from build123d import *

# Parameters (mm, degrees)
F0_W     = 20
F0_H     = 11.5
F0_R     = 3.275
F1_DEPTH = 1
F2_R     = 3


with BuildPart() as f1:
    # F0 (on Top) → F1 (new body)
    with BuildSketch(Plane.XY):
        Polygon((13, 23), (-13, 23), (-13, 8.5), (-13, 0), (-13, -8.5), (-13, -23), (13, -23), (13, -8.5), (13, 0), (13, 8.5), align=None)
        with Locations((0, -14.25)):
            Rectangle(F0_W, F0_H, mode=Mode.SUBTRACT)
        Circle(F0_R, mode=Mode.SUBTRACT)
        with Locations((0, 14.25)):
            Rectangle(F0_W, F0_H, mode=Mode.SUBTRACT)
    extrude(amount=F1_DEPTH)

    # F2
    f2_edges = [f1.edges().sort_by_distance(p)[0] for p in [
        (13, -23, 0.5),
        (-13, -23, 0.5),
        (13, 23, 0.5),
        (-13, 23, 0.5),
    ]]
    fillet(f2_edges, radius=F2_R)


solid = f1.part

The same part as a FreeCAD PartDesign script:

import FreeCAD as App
import Part
import Sketcher
from FreeCAD import Vector
Q = App.Units.Quantity


def edges_at(feature, points):
    """Names of the edges that pass closest to the given points."""
    edges = feature.Shape.Edges
    near = lambda p: min(range(len(edges)), key=lambda i: edges[i].distToShape(Part.Vertex(*p))[0])
    return sorted({f"Edge{near(p) + 1}" for p in points})


def add_polygon(sketch, points):
    """Adds a closed chain of lines whose ends are joined by coincident constraints."""
    first, n = sketch.GeometryCount, len(points)
    for a, b in zip(points, points[1:] + points[:1]):
        sketch.addGeometry(Part.LineSegment(App.Vector(*a, 0), App.Vector(*b, 0)), False)
    for i in range(n):
        sketch.addConstraint(Sketcher.Constraint("Coincident", first + i, 2, first + (i + 1) % n, 1))

doc = App.newDocument("Part")
body = doc.addObject("PartDesign::Body", "Body")

# Sketch on XY plane
sketch1 = doc.addObject("Sketcher::SketchObject", "Sketch")
body.addObject(sketch1)
sketch1.AttachmentSupport = (doc.XY_Plane, [""])
sketch1.MapMode = "FlatFace"
add_polygon(sketch1, [(13, 23), (-13, 23), (-13, -23), (13, -23)])  # lines 0-3
add_polygon(sketch1, [(10, -20), (-10, -20), (-10, -8.5), (10, -8.5)])  # lines 4-7
sketch1.addGeometry(Part.Circle(Vector(0, 0, 0), Vector(0, 0, 1), 3.3), False)  # 8
add_polygon(sketch1, [(10, 8.5), (-10, 8.5), (-10, 20), (10, 20)])  # lines 9-12
sketch1.addConstraint(Sketcher.Constraint("Horizontal", 0))
sketch1.addConstraint(Sketcher.Constraint("Vertical", 1))
sketch1.addConstraint(Sketcher.Constraint("Horizontal", 2))
sketch1.addConstraint(Sketcher.Constraint("Vertical", 3))
sketch1.addConstraint(Sketcher.Constraint("Horizontal", 4))
sketch1.addConstraint(Sketcher.Constraint("Vertical", 5))
sketch1.addConstraint(Sketcher.Constraint("Horizontal", 6))
sketch1.addConstraint(Sketcher.Constraint("Vertical", 7))
sketch1.addConstraint(Sketcher.Constraint("Horizontal", 9))
sketch1.addConstraint(Sketcher.Constraint("Vertical", 10))
sketch1.addConstraint(Sketcher.Constraint("Horizontal", 11))
sketch1.addConstraint(Sketcher.Constraint("Vertical", 12))
sketch1.addConstraint(Sketcher.Constraint("Coincident", 8, 3, -1, 1))
sketch1.addConstraint(Sketcher.Constraint("Symmetric", 0, 2, 2, 2, -1, 1))
sketch1.addConstraint(Sketcher.Constraint("Symmetric", 6, 2, 9, 2, -1, 1))
sketch1.addConstraint(Sketcher.Constraint("Symmetric", 4, 2, 11, 2, -1, 1))
sketch1.addConstraint(Sketcher.Constraint("Vertical", 5, 2, 9, 2))
sketch1.addConstraint(Sketcher.Constraint("Diameter", 8, Q("6.55 mm")))
sketch1.addConstraint(Sketcher.Constraint("DistanceX", 0, 2, 0, 1, Q("26 mm")))
sketch1.addConstraint(Sketcher.Constraint("DistanceX", 4, 2, 4, 1, Q("20 mm")))
sketch1.addConstraint(Sketcher.Constraint("DistanceY", 1, 2, 1, 1, Q("46 mm")))
sketch1.addConstraint(Sketcher.Constraint("DistanceY", 5, 1, 5, 2, Q("11.5 mm")))
sketch1.addConstraint(Sketcher.Constraint("DistanceY", 4, 2, -1, 1, Q("20 mm")))
pad1 = doc.addObject("PartDesign::Pad", "Pad")
body.addObject(pad1)
pad1.Profile = sketch1
pad1.Length = 1
doc.recompute()

fillet = doc.addObject("PartDesign::Fillet", "Fillet")
body.addObject(fillet)
fillet.Base = (pad1, edges_at(pad1, [
    (13, -23, 0.5),
    (-13, -23, 0.5),
    (13, 23, 0.5),
    (-13, 23, 0.5),
]))
fillet.Radius = 3

doc.recompute()
